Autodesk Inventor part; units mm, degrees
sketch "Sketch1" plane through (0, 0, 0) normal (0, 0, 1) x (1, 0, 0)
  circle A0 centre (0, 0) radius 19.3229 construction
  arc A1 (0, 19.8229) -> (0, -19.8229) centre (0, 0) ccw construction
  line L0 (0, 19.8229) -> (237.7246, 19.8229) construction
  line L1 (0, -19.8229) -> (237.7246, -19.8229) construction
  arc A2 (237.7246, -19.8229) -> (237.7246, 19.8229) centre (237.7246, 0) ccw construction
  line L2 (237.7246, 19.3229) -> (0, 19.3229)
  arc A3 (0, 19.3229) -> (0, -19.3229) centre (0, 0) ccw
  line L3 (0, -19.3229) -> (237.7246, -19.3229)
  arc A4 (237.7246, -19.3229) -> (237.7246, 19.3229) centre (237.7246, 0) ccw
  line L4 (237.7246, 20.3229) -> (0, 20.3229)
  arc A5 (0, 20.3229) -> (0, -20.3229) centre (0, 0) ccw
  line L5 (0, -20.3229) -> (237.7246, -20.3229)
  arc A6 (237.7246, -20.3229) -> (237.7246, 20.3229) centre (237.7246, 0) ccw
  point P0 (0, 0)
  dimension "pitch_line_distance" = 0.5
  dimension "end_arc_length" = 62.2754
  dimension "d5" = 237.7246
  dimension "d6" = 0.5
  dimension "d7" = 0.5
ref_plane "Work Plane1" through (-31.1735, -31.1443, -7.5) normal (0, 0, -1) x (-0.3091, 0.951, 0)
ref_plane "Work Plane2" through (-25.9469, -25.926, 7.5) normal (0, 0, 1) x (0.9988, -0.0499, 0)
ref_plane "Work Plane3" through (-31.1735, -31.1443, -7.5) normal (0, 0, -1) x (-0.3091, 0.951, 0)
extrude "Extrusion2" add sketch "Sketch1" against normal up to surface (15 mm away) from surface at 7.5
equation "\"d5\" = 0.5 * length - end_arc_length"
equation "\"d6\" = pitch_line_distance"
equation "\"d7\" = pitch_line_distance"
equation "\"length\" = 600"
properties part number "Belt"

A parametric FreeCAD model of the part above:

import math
import FreeCAD as App
import Part
import Sketcher
from FreeCAD import Vector

doc = App.newDocument("Part")
body = doc.addObject("PartDesign::Body", "Body")

sketch1 = body.newObject("Sketcher::SketchObject", "Sketch")
sketch1.AttachmentSupport = (doc.getObject("XY_Plane"), [""])
sketch1.MapMode = "FlatFace"
sketch1.AttachmentOffset = App.Placement(Vector(0, 0, 7.5), App.Rotation())
sketch1.addGeometry([
    Part.ArcOfCircle(Part.Circle(Vector(237.7246, 0, 0), Vector(0, 0, 1), 20.3229), math.radians(-90), math.radians(90)),
    Part.LineSegment(Vector(237.7246, 20.3229, 0), Vector(0, 20.3229, 0)),
    Part.ArcOfCircle(Part.Circle(Vector(0, 0, 0), Vector(0, 0, 1), 20.3229), math.radians(90), math.radians(270)),
    Part.LineSegment(Vector(0, -20.3229, 0), Vector(237.7246, -20.3229, 0)),
    Part.LineSegment(Vector(0, 19.3229, 0), Vector(237.7246, 19.3229, 0)),
    Part.ArcOfCircle(Part.Circle(Vector(237.7246, 0, 0), Vector(0, 0, 1), 19.3229), math.radians(-90), math.radians(90)),
    Part.LineSegment(Vector(237.7246, -19.3229, 0), Vector(0, -19.3229, 0)),
    Part.ArcOfCircle(Part.Circle(Vector(0, 0, 0), Vector(0, 0, 1), 19.3229), math.radians(90), math.radians(270)),
], False)
sketch1.addConstraint([
    Sketcher.Constraint("Tangent", 0, 2, 1, 1),
    Sketcher.Constraint("Tangent", 1, 2, 2, 1),
    Sketcher.Constraint("Tangent", 2, 2, 3, 1),
    Sketcher.Constraint("Tangent", 3, 2, 0, 1),
    Sketcher.Constraint("Tangent", 4, 2, 5, 2),
    Sketcher.Constraint("Tangent", 5, 1, 6, 1),
    Sketcher.Constraint("Tangent", 6, 2, 7, 2),
    Sketcher.Constraint("Tangent", 7, 1, 4, 1),
    Sketcher.Constraint("Horizontal", 1),
    Sketcher.Constraint("Horizontal", 3),
    Sketcher.Constraint("Horizontal", 4),
    Sketcher.Constraint("Horizontal", 6),
    Sketcher.Constraint("Coincident", 2, 3, -1, 1),
    Sketcher.Constraint("Coincident", 7, 3, -1, 1),
    Sketcher.Constraint("Vertical", 5, 3, 0, 2),
    Sketcher.Constraint("DistanceX", 1, 2, 1, 1, 237.7246),
    Sketcher.Constraint("Radius", 0, 20.323),
    Sketcher.Constraint("Radius", 5, 19.323),
])
pad1 = body.newObject("PartDesign::Pad", "Pad")
pad1.Profile = sketch1
pad1.Length = 15
pad1.Reversed = True

doc.recompute()
